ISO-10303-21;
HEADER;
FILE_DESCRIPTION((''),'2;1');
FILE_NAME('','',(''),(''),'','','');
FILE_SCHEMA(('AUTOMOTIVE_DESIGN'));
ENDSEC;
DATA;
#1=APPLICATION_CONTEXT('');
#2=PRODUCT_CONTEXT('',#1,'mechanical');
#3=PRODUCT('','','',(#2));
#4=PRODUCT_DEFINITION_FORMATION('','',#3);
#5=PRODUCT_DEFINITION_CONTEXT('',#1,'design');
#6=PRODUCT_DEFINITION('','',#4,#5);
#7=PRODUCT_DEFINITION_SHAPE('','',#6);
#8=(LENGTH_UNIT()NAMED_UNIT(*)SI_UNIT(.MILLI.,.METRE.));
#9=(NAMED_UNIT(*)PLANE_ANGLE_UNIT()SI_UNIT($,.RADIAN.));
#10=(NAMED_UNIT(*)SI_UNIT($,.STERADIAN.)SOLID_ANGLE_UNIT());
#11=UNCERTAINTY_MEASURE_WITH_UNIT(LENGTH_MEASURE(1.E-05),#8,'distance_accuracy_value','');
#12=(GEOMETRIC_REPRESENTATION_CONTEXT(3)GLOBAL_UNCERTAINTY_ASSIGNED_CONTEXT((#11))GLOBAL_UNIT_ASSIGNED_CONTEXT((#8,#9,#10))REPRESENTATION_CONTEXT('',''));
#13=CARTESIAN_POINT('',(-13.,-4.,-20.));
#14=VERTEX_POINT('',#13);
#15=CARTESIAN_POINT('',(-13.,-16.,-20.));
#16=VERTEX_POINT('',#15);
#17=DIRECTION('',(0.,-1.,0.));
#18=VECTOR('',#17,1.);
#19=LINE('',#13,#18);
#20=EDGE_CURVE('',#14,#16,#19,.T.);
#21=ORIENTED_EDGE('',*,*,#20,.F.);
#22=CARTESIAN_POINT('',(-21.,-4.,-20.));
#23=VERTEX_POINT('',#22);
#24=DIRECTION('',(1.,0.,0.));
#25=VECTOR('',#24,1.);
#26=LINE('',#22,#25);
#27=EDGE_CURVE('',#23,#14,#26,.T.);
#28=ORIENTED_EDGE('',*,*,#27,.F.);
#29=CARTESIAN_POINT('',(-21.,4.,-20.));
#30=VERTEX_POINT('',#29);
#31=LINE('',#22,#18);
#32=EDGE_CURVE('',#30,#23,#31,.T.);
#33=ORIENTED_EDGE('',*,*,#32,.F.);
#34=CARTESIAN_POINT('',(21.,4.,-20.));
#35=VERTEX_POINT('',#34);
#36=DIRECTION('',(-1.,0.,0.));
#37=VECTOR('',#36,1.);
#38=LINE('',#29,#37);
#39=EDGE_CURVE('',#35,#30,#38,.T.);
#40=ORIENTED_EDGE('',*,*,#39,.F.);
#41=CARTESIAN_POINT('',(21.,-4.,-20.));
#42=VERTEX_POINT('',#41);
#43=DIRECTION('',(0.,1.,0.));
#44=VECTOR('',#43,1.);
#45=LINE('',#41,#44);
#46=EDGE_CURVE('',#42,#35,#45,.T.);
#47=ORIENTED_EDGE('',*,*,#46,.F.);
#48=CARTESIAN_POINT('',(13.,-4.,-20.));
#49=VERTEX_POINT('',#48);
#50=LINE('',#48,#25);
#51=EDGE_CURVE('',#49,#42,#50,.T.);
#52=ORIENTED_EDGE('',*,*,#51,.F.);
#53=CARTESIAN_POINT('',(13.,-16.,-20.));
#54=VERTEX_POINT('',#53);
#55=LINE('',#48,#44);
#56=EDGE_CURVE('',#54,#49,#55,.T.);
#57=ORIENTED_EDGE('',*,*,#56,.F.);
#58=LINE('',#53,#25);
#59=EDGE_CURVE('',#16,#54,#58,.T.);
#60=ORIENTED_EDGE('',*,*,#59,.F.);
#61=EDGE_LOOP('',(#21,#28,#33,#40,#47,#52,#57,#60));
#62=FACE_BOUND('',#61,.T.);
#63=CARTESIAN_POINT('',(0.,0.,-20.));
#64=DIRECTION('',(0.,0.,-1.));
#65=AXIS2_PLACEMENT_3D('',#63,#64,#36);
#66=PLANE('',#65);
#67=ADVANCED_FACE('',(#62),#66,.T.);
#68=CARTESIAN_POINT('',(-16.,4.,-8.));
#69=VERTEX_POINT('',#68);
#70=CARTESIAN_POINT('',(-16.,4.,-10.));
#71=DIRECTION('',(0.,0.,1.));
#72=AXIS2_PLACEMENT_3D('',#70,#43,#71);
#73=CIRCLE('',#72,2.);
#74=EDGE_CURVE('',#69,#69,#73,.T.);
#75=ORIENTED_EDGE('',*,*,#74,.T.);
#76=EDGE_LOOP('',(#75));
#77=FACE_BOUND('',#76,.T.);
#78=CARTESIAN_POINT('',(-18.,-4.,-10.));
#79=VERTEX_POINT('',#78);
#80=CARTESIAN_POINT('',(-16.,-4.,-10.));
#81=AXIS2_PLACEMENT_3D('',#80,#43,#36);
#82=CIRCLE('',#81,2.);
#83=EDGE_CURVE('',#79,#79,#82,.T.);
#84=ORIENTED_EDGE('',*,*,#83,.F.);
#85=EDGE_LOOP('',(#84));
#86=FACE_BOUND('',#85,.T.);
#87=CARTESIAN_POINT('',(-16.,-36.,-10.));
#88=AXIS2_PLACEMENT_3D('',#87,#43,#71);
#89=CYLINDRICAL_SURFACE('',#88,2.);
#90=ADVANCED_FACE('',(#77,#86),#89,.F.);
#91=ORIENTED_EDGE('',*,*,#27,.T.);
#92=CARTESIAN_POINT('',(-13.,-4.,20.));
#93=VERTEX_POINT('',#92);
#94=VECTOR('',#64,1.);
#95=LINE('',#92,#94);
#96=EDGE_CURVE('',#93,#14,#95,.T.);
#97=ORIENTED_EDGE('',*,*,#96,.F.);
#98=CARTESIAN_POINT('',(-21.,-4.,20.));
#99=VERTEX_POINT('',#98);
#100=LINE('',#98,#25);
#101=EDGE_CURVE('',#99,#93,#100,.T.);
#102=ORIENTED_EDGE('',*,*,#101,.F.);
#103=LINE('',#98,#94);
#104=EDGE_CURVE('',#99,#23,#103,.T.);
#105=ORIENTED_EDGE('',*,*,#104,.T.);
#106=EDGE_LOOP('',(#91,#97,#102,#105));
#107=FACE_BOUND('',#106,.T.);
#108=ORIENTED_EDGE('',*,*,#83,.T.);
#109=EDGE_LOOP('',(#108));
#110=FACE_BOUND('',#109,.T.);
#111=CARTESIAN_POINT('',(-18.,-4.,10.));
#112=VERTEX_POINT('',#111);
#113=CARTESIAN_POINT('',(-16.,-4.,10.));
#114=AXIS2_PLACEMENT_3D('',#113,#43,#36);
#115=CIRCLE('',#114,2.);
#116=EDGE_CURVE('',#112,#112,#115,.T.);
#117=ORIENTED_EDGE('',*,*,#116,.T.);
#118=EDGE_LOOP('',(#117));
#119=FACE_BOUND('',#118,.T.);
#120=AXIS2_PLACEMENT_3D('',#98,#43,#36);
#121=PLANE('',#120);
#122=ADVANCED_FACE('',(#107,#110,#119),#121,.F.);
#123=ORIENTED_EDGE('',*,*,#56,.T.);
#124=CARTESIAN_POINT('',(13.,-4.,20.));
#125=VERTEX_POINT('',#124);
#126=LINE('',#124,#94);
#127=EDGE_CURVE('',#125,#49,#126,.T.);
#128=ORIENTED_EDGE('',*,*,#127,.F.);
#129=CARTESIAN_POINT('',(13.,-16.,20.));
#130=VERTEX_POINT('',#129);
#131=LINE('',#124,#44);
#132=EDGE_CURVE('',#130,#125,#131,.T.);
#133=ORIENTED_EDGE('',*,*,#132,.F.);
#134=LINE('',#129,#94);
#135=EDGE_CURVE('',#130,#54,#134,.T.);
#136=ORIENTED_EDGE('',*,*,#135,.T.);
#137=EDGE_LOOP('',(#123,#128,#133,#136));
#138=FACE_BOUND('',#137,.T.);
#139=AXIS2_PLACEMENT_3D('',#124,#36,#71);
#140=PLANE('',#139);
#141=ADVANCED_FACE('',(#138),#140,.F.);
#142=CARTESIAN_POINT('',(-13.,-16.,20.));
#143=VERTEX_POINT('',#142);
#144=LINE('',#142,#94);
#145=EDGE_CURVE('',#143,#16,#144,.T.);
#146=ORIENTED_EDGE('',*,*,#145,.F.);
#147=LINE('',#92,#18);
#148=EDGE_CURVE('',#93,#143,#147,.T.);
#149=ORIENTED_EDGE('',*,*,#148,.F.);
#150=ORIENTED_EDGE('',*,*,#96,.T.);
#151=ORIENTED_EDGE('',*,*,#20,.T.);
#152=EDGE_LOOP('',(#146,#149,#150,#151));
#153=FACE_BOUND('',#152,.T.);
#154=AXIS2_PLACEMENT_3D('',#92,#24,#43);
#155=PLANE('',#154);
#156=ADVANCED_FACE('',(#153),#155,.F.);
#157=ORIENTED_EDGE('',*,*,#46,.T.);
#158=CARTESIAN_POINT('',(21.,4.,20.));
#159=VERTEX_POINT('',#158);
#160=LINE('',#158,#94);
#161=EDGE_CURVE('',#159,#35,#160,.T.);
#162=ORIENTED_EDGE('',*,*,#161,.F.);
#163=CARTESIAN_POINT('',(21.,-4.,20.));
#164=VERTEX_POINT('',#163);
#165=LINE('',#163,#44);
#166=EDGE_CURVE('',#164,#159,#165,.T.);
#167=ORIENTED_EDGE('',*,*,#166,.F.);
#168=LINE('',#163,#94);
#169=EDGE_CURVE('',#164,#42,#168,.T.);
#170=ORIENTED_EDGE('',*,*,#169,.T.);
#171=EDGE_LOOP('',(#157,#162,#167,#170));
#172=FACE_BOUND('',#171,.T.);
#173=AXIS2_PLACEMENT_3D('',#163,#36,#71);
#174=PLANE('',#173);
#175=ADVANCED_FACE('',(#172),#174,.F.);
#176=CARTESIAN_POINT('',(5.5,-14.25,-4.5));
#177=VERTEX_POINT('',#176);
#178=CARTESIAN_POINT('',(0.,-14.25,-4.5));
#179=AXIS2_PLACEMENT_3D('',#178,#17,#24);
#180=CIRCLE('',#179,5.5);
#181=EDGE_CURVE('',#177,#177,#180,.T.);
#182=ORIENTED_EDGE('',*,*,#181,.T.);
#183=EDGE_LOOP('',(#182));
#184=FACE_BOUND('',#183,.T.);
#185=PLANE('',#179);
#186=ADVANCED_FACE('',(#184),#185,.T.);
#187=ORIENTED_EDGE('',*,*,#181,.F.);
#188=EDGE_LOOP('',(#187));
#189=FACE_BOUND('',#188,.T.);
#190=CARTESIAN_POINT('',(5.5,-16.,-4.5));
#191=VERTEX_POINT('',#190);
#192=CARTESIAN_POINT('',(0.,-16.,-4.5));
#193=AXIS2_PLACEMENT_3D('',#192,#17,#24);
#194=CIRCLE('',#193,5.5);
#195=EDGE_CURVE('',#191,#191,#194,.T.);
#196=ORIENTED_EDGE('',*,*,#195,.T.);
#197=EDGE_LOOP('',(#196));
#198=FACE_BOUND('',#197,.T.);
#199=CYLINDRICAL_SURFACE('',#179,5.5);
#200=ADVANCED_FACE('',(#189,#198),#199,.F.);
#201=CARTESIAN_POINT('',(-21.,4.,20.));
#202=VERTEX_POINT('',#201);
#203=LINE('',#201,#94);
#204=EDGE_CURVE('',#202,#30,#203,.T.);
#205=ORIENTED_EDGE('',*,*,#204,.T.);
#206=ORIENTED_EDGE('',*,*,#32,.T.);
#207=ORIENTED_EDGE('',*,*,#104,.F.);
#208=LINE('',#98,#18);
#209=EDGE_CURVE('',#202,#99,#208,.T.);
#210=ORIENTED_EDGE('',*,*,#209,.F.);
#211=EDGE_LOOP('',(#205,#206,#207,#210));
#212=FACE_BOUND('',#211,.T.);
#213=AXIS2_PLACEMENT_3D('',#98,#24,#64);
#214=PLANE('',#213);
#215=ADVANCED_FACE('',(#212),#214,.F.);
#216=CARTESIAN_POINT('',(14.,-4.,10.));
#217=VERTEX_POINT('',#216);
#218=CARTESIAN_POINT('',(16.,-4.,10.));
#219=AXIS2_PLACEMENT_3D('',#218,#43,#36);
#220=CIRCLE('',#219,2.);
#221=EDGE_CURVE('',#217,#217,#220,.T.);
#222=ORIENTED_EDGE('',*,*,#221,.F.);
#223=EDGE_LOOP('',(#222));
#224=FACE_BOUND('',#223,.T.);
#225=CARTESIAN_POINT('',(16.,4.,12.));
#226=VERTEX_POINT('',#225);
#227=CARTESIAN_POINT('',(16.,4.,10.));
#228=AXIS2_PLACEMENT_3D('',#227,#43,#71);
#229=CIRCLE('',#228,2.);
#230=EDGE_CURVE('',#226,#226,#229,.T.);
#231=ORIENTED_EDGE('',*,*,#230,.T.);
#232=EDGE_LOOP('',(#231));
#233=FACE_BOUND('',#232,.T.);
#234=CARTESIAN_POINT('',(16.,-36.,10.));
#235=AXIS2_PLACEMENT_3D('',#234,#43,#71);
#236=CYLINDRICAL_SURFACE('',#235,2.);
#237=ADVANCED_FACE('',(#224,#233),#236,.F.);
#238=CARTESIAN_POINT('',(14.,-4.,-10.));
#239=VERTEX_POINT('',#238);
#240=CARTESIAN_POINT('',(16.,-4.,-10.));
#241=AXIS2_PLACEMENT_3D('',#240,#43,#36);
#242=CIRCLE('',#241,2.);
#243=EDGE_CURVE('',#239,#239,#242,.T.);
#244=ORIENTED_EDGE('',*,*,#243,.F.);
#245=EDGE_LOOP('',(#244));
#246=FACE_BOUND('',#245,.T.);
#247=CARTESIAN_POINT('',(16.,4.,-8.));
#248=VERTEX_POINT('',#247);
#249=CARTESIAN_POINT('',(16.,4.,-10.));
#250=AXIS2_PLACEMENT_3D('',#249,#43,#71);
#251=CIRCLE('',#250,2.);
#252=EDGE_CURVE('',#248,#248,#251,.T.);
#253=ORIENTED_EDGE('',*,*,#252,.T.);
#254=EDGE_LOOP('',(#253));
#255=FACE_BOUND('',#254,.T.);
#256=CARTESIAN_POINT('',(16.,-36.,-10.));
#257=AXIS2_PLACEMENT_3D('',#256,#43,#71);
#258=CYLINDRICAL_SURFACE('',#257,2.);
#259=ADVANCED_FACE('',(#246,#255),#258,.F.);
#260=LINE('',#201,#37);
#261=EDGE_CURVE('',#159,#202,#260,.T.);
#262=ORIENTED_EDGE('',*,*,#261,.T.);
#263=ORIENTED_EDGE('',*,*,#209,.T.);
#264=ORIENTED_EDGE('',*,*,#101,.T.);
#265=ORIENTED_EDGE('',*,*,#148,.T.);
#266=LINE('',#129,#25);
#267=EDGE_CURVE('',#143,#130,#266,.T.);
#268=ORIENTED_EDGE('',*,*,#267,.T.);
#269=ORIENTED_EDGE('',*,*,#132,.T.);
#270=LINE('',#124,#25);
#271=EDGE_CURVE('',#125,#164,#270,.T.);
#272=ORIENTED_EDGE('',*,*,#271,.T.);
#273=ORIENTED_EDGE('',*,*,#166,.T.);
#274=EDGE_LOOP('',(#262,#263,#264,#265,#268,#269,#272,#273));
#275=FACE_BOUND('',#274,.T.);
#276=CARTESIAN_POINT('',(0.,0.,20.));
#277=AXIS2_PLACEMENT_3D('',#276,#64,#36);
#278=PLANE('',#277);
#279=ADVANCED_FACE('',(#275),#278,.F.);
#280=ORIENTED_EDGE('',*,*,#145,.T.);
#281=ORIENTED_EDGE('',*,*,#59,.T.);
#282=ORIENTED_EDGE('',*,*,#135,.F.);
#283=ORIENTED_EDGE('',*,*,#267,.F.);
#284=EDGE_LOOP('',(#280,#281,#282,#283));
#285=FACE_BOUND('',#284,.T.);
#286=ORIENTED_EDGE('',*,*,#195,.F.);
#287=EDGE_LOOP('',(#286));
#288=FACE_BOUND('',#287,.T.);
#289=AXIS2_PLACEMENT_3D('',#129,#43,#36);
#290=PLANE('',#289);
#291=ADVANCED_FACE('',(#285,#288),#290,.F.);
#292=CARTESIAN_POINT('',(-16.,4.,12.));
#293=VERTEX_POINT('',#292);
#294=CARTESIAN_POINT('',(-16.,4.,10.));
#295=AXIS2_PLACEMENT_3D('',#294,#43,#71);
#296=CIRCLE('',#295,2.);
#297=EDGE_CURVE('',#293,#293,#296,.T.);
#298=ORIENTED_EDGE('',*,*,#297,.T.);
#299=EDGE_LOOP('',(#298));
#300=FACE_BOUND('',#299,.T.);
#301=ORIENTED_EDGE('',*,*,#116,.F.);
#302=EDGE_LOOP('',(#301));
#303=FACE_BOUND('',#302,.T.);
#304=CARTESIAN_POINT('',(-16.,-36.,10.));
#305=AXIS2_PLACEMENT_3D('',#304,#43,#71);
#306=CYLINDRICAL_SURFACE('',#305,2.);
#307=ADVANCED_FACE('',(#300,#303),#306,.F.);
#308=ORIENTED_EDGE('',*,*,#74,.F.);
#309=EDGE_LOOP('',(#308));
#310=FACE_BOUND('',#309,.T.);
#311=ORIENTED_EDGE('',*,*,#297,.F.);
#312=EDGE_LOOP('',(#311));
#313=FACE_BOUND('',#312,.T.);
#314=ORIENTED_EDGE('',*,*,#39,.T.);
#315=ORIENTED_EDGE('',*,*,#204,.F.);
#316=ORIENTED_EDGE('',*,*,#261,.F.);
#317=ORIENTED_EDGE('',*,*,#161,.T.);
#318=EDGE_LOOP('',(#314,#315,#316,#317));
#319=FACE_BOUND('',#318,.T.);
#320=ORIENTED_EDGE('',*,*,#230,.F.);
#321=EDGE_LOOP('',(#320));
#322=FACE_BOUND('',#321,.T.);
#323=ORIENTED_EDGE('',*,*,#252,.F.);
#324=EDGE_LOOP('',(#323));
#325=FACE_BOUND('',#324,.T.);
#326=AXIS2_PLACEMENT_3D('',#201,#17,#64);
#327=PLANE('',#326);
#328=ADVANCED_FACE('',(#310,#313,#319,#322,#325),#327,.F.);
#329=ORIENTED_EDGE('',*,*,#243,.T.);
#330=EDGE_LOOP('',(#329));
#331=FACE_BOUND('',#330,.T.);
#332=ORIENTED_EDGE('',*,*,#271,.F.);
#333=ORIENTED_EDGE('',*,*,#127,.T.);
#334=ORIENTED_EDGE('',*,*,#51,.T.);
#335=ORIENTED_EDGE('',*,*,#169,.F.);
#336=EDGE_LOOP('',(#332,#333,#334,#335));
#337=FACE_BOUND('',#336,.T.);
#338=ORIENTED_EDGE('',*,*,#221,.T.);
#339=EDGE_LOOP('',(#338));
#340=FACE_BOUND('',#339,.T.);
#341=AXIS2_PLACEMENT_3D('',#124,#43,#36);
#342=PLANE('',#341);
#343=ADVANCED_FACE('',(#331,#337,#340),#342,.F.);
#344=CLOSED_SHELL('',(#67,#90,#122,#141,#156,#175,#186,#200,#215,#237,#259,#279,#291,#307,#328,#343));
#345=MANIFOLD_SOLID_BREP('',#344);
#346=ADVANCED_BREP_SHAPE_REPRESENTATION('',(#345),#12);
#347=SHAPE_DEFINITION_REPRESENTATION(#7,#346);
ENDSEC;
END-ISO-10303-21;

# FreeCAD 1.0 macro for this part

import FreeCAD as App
import Part
import Sketcher
Q = App.Units.Quantity


def add_polygon(sketch, points):
    """Adds a closed chain of lines whose ends are joined by coincident constraints."""
    first, n = sketch.GeometryCount, len(points)
    for a, b in zip(points, points[1:] + points[:1]):
        sketch.addGeometry(Part.LineSegment(App.Vector(*a, 0), App.Vector(*b, 0)), False)
    for i in range(n):
        sketch.addConstraint(Sketcher.Constraint("Coincident", first + i, 2, first + (i + 1) % n, 1))

doc = App.newDocument("Part")
body = doc.addObject("PartDesign::Body", "Body")

# Sketch on XY plane
sketch1 = body.newObject("Sketcher::SketchObject", "Sketch")
sketch1.AttachmentSupport = (doc.getObject("XY_Plane"), [""])
sketch1.MapMode = "FlatFace"
add_polygon(sketch1, [(13, -4), (21, -4), (21, 4), (-21, 4), (-21, -4), (-13, -4), (-13, -16), (13, -16)])  # lines 0-7
sketch1.addConstraint(Sketcher.Constraint("Horizontal", 0))
sketch1.addConstraint(Sketcher.Constraint("Vertical", 1))
sketch1.addConstraint(Sketcher.Constraint("Horizontal", 2))
sketch1.addConstraint(Sketcher.Constraint("Vertical", 3))
sketch1.addConstraint(Sketcher.Constraint("Horizontal", 4))
sketch1.addConstraint(Sketcher.Constraint("Vertical", 5))
sketch1.addConstraint(Sketcher.Constraint("Horizontal", 6))
sketch1.addConstraint(Sketcher.Constraint("Vertical", 7))
sketch1.addConstraint(Sketcher.Constraint("Symmetric", 0, 2, 2, 2, -1, 1))
sketch1.addConstraint(Sketcher.Constraint("Symmetric", 4, 2, 7, 2, -2))
sketch1.addConstraint(Sketcher.Constraint("Equal", 4, 1))
sketch1.addConstraint(Sketcher.Constraint("DistanceX", 0, 1, 0, 2, Q("8 mm")))
sketch1.addConstraint(Sketcher.Constraint("DistanceX", 2, 2, 2, 1, Q("42 mm")))
sketch1.addConstraint(Sketcher.Constraint("DistanceY", 5, 2, 5, 1, Q("12 mm")))
pad1 = body.newObject("PartDesign::Pad", "Pad")
pad1.Profile = sketch1
pad1.Length = 40
pad1.Midplane = True

# Sketch on XZ plane
sketch2 = body.newObject("Sketcher::SketchObject", "Sketch001")
sketch2.AttachmentSupport = (doc.getObject("XZ_Plane"), [""])
sketch2.MapMode = "FlatFace"
sketch2.AttachmentOffset = App.Placement(App.Vector(0, 0, -4), App.Rotation())
sketch2.addGeometry(Part.Circle(App.Vector(-16, -10, 0), App.Vector(0, 0, 1), 2), False)
sketch2.addGeometry(Part.Circle(App.Vector(16, -10, 0), App.Vector(0, 0, 1), 2), False)
sketch2.addGeometry(Part.Circle(App.Vector(-16, 10, 0), App.Vector(0, 0, 1), 2), False)
sketch2.addGeometry(Part.Circle(App.Vector(16, 10, 0), App.Vector(0, 0, 1), 2), False)
sketch2.addConstraint(Sketcher.Constraint("Equal", 0, 1))
sketch2.addConstraint(Sketcher.Constraint("Equal", 1, 2))
sketch2.addConstraint(Sketcher.Constraint("Equal", 2, 3))
sketch2.addConstraint(Sketcher.Constraint("Symmetric", 1, 3, 2, 3, -1, 1))
sketch2.addConstraint(Sketcher.Constraint("Symmetric", 0, 3, 3, 3, -1, 1))
sketch2.addConstraint(Sketcher.Constraint("Symmetric", 0, 3, 1, 3, -2))
sketch2.addConstraint(Sketcher.Constraint("Diameter", 0, Q("4 mm")))
sketch2.addConstraint(Sketcher.Constraint("DistanceX", 0, 3, -1, 1, Q("16 mm")))
sketch2.addConstraint(Sketcher.Constraint("DistanceY", 0, 3, -1, 1, Q("10 mm")))
pocket1 = body.newObject("PartDesign::Pocket", "Pocket")
pocket1.Profile = sketch2
pocket1.Length = 40
pocket1.Reversed = True

# Sketch on XZ plane
sketch3 = body.newObject("Sketcher::SketchObject", "Sketch002")
sketch3.AttachmentSupport = (doc.getObject("XZ_Plane"), [""])
sketch3.MapMode = "FlatFace"
sketch3.AttachmentOffset = App.Placement(App.Vector(0, 0, 16), App.Rotation())
sketch3.addGeometry(Part.Circle(App.Vector(0, -4, 0), App.Vector(0, 0, 1), 6), False)
sketch3.addConstraint(Sketcher.Constraint("PointOnObject", 0, 3, -2))
sketch3.addConstraint(Sketcher.Constraint("Diameter", 0, Q("11 mm")))
sketch3.addConstraint(Sketcher.Constraint("DistanceY", 0, 3, -1, 1, Q("4.5 mm")))
pocket2 = body.newObject("PartDesign::Pocket", "Pocket001")
pocket2.Profile = sketch3
pocket2.Length = 1.75

doc.recompute()
